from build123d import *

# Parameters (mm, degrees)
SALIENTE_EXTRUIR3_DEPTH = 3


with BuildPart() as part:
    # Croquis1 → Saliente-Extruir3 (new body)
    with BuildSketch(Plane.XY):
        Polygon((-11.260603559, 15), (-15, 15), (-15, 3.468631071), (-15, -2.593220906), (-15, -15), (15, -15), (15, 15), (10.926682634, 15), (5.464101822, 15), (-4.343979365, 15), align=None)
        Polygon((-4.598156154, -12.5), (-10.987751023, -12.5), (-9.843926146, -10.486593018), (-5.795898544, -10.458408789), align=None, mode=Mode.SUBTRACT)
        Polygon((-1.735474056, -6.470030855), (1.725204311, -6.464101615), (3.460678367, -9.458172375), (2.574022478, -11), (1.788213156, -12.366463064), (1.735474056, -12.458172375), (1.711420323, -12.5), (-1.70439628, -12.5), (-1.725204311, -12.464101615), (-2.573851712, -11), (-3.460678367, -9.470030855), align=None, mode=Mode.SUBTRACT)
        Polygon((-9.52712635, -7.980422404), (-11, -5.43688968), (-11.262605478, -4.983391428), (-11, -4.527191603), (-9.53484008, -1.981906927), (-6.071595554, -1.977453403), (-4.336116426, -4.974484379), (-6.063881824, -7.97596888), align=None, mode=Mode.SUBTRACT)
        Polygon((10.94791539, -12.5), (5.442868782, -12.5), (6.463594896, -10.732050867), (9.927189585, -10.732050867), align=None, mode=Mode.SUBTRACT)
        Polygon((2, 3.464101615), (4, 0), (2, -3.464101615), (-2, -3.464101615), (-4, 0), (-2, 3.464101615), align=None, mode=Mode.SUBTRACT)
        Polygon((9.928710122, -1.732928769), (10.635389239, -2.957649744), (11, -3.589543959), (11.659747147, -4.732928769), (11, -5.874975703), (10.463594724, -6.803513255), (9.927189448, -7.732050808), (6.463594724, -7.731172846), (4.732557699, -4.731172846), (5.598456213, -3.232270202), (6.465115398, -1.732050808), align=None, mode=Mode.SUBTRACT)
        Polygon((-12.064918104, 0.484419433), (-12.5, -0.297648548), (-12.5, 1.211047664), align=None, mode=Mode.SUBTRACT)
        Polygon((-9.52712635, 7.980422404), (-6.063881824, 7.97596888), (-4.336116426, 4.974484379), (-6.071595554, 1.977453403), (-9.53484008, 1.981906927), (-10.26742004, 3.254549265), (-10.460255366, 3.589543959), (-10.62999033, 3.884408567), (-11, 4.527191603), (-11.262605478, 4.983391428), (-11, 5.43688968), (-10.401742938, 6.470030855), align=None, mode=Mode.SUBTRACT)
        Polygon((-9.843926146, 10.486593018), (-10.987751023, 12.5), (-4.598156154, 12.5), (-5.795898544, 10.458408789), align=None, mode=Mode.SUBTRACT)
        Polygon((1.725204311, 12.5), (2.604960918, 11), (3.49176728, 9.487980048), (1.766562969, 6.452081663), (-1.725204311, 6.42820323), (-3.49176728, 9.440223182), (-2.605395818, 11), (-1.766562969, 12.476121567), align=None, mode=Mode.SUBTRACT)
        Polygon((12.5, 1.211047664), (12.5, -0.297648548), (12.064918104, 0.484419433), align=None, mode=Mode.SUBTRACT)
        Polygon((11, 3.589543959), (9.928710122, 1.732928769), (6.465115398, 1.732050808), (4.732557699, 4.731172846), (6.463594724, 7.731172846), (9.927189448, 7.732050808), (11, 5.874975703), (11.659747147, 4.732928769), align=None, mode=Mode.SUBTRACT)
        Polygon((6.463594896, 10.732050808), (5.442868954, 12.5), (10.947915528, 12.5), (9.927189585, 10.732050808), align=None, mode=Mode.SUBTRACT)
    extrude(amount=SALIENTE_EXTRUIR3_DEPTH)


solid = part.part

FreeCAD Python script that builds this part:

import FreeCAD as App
import Part
import Sketcher
Q = App.Units.Quantity

doc = App.newDocument("Part")
body = doc.addObject("PartDesign::Body", "Body")

# Sketch on XY plane
sketch1 = body.newObject("Sketcher::SketchObject", "Sketch")
sketch1.AttachmentSupport = (doc.getObject("XY_Plane"), [""])
sketch1.MapMode = "FlatFace"
sketch1.addGeometry([
    Part.LineSegment(App.Vector(-15, 15, 0), App.Vector(-15, -15, 0)),  # 0
    Part.LineSegment(App.Vector(-15, -15, 0), App.Vector(15, -15, 0)),  # 1
    Part.LineSegment(App.Vector(15, -15, 0), App.Vector(15, 15, 0)),  # 2
    Part.LineSegment(App.Vector(15, 15, 0), App.Vector(-15, 15, 0)),  # 3
    Part.LineSegment(App.Vector(-5.796, -10.458, 0), App.Vector(-4.598, -12.5, 0)),  # 4
    Part.LineSegment(App.Vector(-4.598, -12.5, 0), App.Vector(-10.988, -12.5, 0)),  # 5
    Part.LineSegment(App.Vector(-10.988, -12.5, 0), App.Vector(-9.844, -10.487, 0)),  # 6
    Part.LineSegment(App.Vector(-9.844, -10.487, 0), App.Vector(-5.796, -10.458, 0)),  # 7
    Part.LineSegment(App.Vector(-6.064, -7.976, 0), App.Vector(-9.527, -7.98, 0)),  # 8
    Part.LineSegment(App.Vector(-9.527, -7.98, 0), App.Vector(-11, -5.437, 0)),  # 9
    Part.LineSegment(App.Vector(-11, -5.437, 0), App.Vector(-11.263, -4.983, 0)),  # 10
    Part.LineSegment(App.Vector(-11.263, -4.983, 0), App.Vector(-11, -4.527, 0)),  # 11
    Part.LineSegment(App.Vector(-11, -4.527, 0), App.Vector(-9.535, -1.982, 0)),  # 12
    Part.LineSegment(App.Vector(-9.535, -1.982, 0), App.Vector(-6.072, -1.977, 0)),  # 13
    Part.LineSegment(App.Vector(-6.072, -1.977, 0), App.Vector(-4.336, -4.974, 0)),  # 14
    Part.LineSegment(App.Vector(-4.336, -4.974, 0), App.Vector(-6.064, -7.976, 0)),  # 15
    Part.LineSegment(App.Vector(-3.461, -9.47, 0), App.Vector(-1.735, -6.47, 0)),  # 16
    Part.LineSegment(App.Vector(-1.735, -6.47, 0), App.Vector(1.725, -6.464, 0)),  # 17
    Part.LineSegment(App.Vector(1.725, -6.464, 0), App.Vector(3.461, -9.458, 0)),  # 18
    Part.LineSegment(App.Vector(3.461, -9.458, 0), App.Vector(2.574, -11, 0)),  # 19
    Part.LineSegment(App.Vector(2.574, -11, 0), App.Vector(1.788, -12.366, 0)),  # 20
    Part.LineSegment(App.Vector(1.788, -12.366, 0), App.Vector(1.735, -12.458, 0)),  # 21
    Part.LineSegment(App.Vector(1.735, -12.458, 0), App.Vector(1.711, -12.5, 0)),  # 22
    Part.LineSegment(App.Vector(1.711, -12.5, 0), App.Vector(-1.704, -12.5, 0)),  # 23
    Part.LineSegment(App.Vector(-1.704, -12.5, 0), App.Vector(-1.725, -12.464, 0)),  # 24
    Part.LineSegment(App.Vector(-1.725, -12.464, 0), App.Vector(-2.574, -11, 0)),  # 25
    Part.LineSegment(App.Vector(-2.574, -11, 0), App.Vector(-3.461, -9.47, 0)),  # 26
    Part.LineSegment(App.Vector(9.927, -10.732, 0), App.Vector(10.948, -12.5, 0)),  # 27
    Part.LineSegment(App.Vector(10.948, -12.5, 0), App.Vector(5.443, -12.5, 0)),  # 28
    Part.LineSegment(App.Vector(5.443, -12.5, 0), App.Vector(6.464, -10.732, 0)),  # 29
    Part.LineSegment(App.Vector(6.464, -10.732, 0), App.Vector(9.927, -10.732, 0)),  # 30
    Part.LineSegment(App.Vector(6.465, -1.732, 0), App.Vector(9.929, -1.733, 0)),  # 31
    Part.LineSegment(App.Vector(9.929, -1.733, 0), App.Vector(10.635, -2.958, 0)),  # 32
    Part.LineSegment(App.Vector(10.635, -2.958, 0), App.Vector(11, -3.59, 0)),  # 33
    Part.LineSegment(App.Vector(11, -3.59, 0), App.Vector(11.66, -4.733, 0)),  # 34
    Part.LineSegment(App.Vector(11.66, -4.733, 0), App.Vector(11, -5.875, 0)),  # 35
    Part.LineSegment(App.Vector(11, -5.875, 0), App.Vector(10.464, -6.804, 0)),  # 36
    Part.LineSegment(App.Vector(10.464, -6.804, 0), App.Vector(9.927, -7.732, 0)),  # 37
    Part.LineSegment(App.Vector(9.927, -7.732, 0), App.Vector(6.464, -7.731, 0)),  # 38
    Part.LineSegment(App.Vector(6.464, -7.731, 0), App.Vector(4.733, -4.731, 0)),  # 39
    Part.LineSegment(App.Vector(4.733, -4.731, 0), App.Vector(5.598, -3.232, 0)),  # 40
    Part.LineSegment(App.Vector(5.598, -3.232, 0), App.Vector(6.465, -1.732, 0)),  # 41
    Part.LineSegment(App.Vector(-12.5, 1.211, 0), App.Vector(-12.065, 0.484, 0)),  # 42
    Part.LineSegment(App.Vector(-12.065, 0.484, 0), App.Vector(-12.5, -0.298, 0)),  # 43
    Part.LineSegment(App.Vector(-12.5, -0.298, 0), App.Vector(-12.5, 1.211, 0)),  # 44
    Part.LineSegment(App.Vector(-10.402, 6.47, 0), App.Vector(-9.527, 7.98, 0)),  # 45
    Part.LineSegment(App.Vector(-9.527, 7.98, 0), App.Vector(-6.064, 7.976, 0)),  # 46
    Part.LineSegment(App.Vector(-6.064, 7.976, 0), App.Vector(-4.336, 4.974, 0)),  # 47
    Part.LineSegment(App.Vector(-4.336, 4.974, 0), App.Vector(-6.072, 1.977, 0)),  # 48
    Part.LineSegment(App.Vector(-6.072, 1.977, 0), App.Vector(-9.535, 1.982, 0)),  # 49
    Part.LineSegment(App.Vector(-9.535, 1.982, 0), App.Vector(-10.267, 3.255, 0)),  # 50
    Part.LineSegment(App.Vector(-10.267, 3.255, 0), App.Vector(-10.46, 3.59, 0)),  # 51
    Part.LineSegment(App.Vector(-10.46, 3.59, 0), App.Vector(-10.63, 3.884, 0)),  # 52
    Part.LineSegment(App.Vector(-10.63, 3.884, 0), App.Vector(-11, 4.527, 0)),  # 53
    Part.LineSegment(App.Vector(-11, 4.527, 0), App.Vector(-11.263, 4.983, 0)),  # 54
    Part.LineSegment(App.Vector(-11.263, 4.983, 0), App.Vector(-11, 5.437, 0)),  # 55
    Part.LineSegment(App.Vector(-11, 5.437, 0), App.Vector(-10.402, 6.47, 0)),  # 56
    Part.LineSegment(App.Vector(-5.796, 10.458, 0), App.Vector(-9.844, 10.487, 0)),  # 57
    Part.LineSegment(App.Vector(-9.844, 10.487, 0), App.Vector(-10.988, 12.5, 0)),  # 58
    Part.LineSegment(App.Vector(-10.988, 12.5, 0), App.Vector(-4.598, 12.5, 0)),  # 59
    Part.LineSegment(App.Vector(-4.598, 12.5, 0), App.Vector(-5.796, 10.458, 0)),  # 60
    Part.LineSegment(App.Vector(-2, 3.464, 0), App.Vector(2, 3.464, 0)),  # 61
    Part.LineSegment(App.Vector(2, 3.464, 0), App.Vector(4, 0, 0)),  # 62
    Part.LineSegment(App.Vector(4, 0, 0), App.Vector(2, -3.464, 0)),  # 63
    Part.LineSegment(App.Vector(2, -3.464, 0), App.Vector(-2, -3.464, 0)),  # 64
    Part.LineSegment(App.Vector(-2, -3.464, 0), App.Vector(-4, 0, 0)),  # 65
    Part.LineSegment(App.Vector(-4, 0, 0), App.Vector(-2, 3.464, 0)),  # 66
    Part.LineSegment(App.Vector(12.065, 0.484, 0), App.Vector(12.5, 1.211, 0)),  # 67
    Part.LineSegment(App.Vector(12.5, 1.211, 0), App.Vector(12.5, -0.298, 0)),  # 68
    Part.LineSegment(App.Vector(12.5, -0.298, 0), App.Vector(12.065, 0.484, 0)),  # 69
    Part.LineSegment(App.Vector(11.66, 4.733, 0), App.Vector(11, 3.59, 0)),  # 70
    Part.LineSegment(App.Vector(11, 3.59, 0), App.Vector(9.929, 1.733, 0)),  # 71
    Part.LineSegment(App.Vector(9.929, 1.733, 0), App.Vector(6.465, 1.732, 0)),  # 72
    Part.LineSegment(App.Vector(6.465, 1.732, 0), App.Vector(4.733, 4.731, 0)),  # 73
    Part.LineSegment(App.Vector(4.733, 4.731, 0), App.Vector(6.464, 7.731, 0)),  # 74
    Part.LineSegment(App.Vector(6.464, 7.731, 0), App.Vector(9.927, 7.732, 0)),  # 75
    Part.LineSegment(App.Vector(9.927, 7.732, 0), App.Vector(11, 5.875, 0)),  # 76
    Part.LineSegment(App.Vector(11, 5.875, 0), App.Vector(11.66, 4.733, 0)),  # 77
    Part.LineSegment(App.Vector(-1.767, 12.476, 0), App.Vector(1.725, 12.5, 0)),  # 78
    Part.LineSegment(App.Vector(1.725, 12.5, 0), App.Vector(2.605, 11, 0)),  # 79
    Part.LineSegment(App.Vector(2.605, 11, 0), App.Vector(3.492, 9.488, 0)),  # 80
    Part.LineSegment(App.Vector(3.492, 9.488, 0), App.Vector(1.767, 6.452, 0)),  # 81
    Part.LineSegment(App.Vector(1.767, 6.452, 0), App.Vector(-1.725, 6.428, 0)),  # 82
    Part.LineSegment(App.Vector(-1.725, 6.428, 0), App.Vector(-3.492, 9.44, 0)),  # 83
    Part.LineSegment(App.Vector(-3.492, 9.44, 0), App.Vector(-2.605, 11, 0)),  # 84
    Part.LineSegment(App.Vector(-2.605, 11, 0), App.Vector(-1.767, 12.476, 0)),  # 85
    Part.LineSegment(App.Vector(9.927, 10.732, 0), App.Vector(6.464, 10.732, 0)),  # 86
    Part.LineSegment(App.Vector(6.464, 10.732, 0), App.Vector(5.443, 12.5, 0)),  # 87
    Part.LineSegment(App.Vector(5.443, 12.5, 0), App.Vector(10.948, 12.5, 0)),  # 88
    Part.LineSegment(App.Vector(10.948, 12.5, 0), App.Vector(9.927, 10.732, 0)),  # 89
], False)
sketch1.addConstraint([
    Sketcher.Constraint("Coincident", 0, 2, 1, 1),
    Sketcher.Constraint("Coincident", 1, 2, 2, 1),
    Sketcher.Constraint("Coincident", 2, 2, 3, 1),
    Sketcher.Constraint("Coincident", 3, 2, 0, 1),
    Sketcher.Constraint("Coincident", 4, 2, 5, 1),
    Sketcher.Constraint("Coincident", 5, 2, 6, 1),
    Sketcher.Constraint("Coincident", 6, 2, 7, 1),
    Sketcher.Constraint("Coincident", 7, 2, 4, 1),
    Sketcher.Constraint("Coincident", 8, 2, 9, 1),
    Sketcher.Constraint("Coincident", 9, 2, 10, 1),
    Sketcher.Constraint("Coincident", 10, 2, 11, 1),
    Sketcher.Constraint("Coincident", 11, 2, 12, 1),
    Sketcher.Constraint("Coincident", 12, 2, 13, 1),
    Sketcher.Constraint("Coincident", 13, 2, 14, 1),
    Sketcher.Constraint("Coincident", 14, 2, 15, 1),
    Sketcher.Constraint("Coincident", 15, 2, 8, 1),
    Sketcher.Constraint("Coincident", 16, 2, 17, 1),
    Sketcher.Constraint("Coincident", 17, 2, 18, 1),
    Sketcher.Constraint("Coincident", 18, 2, 19, 1),
    Sketcher.Constraint("Coincident", 19, 2, 20, 1),
    Sketcher.Constraint("Coincident", 20, 2, 21, 1),
    Sketcher.Constraint("Coincident", 21, 2, 22, 1),
    Sketcher.Constraint("Coincident", 22, 2, 23, 1),
    Sketcher.Constraint("Coincident", 23, 2, 24, 1),
    Sketcher.Constraint("Coincident", 24, 2, 25, 1),
    Sketcher.Constraint("Coincident", 25, 2, 26, 1),
    Sketcher.Constraint("Coincident", 26, 2, 16, 1),
    Sketcher.Constraint("Coincident", 27, 2, 28, 1),
    Sketcher.Constraint("Coincident", 28, 2, 29, 1),
    Sketcher.Constraint("Coincident", 29, 2, 30, 1),
    Sketcher.Constraint("Coincident", 30, 2, 27, 1),
    Sketcher.Constraint("Coincident", 31, 2, 32, 1),
    Sketcher.Constraint("Coincident", 32, 2, 33, 1),
    Sketcher.Constraint("Coincident", 33, 2, 34, 1),
    Sketcher.Constraint("Coincident", 34, 2, 35, 1),
    Sketcher.Constraint("Coincident", 35, 2, 36, 1),
    Sketcher.Constraint("Coincident", 36, 2, 37, 1),
    Sketcher.Constraint("Coincident", 37, 2, 38, 1),
    Sketcher.Constraint("Coincident", 38, 2, 39, 1),
    Sketcher.Constraint("Coincident", 39, 2, 40, 1),
    Sketcher.Constraint("Coincident", 40, 2, 41, 1),
    Sketcher.Constraint("Coincident", 41, 2, 31, 1),
    Sketcher.Constraint("Coincident", 42, 2, 43, 1),
    Sketcher.Constraint("Coincident", 43, 2, 44, 1),
    Sketcher.Constraint("Coincident", 44, 2, 42, 1),
    Sketcher.Constraint("Coincident", 45, 2, 46, 1),
    Sketcher.Constraint("Coincident", 46, 2, 47, 1),
    Sketcher.Constraint("Coincident", 47, 2, 48, 1),
    Sketcher.Constraint("Coincident", 48, 2, 49, 1),
    Sketcher.Constraint("Coincident", 49, 2, 50, 1),
    Sketcher.Constraint("Coincident", 50, 2, 51, 1),
    Sketcher.Constraint("Coincident", 51, 2, 52, 1),
    Sketcher.Constraint("Coincident", 52, 2, 53, 1),
    Sketcher.Constraint("Coincident", 53, 2, 54, 1),
    Sketcher.Constraint("Coincident", 54, 2, 55, 1),
    Sketcher.Constraint("Coincident", 55, 2, 56, 1),
    Sketcher.Constraint("Coincident", 56, 2, 45, 1),
    Sketcher.Constraint("Coincident", 57, 2, 58, 1),
    Sketcher.Constraint("Coincident", 58, 2, 59, 1),
    Sketcher.Constraint("Coincident", 59, 2, 60, 1),
    Sketcher.Constraint("Coincident", 60, 2, 57, 1),
    Sketcher.Constraint("Coincident", 61, 2, 62, 1),
    Sketcher.Constraint("Coincident", 62, 2, 63, 1),
    Sketcher.Constraint("Coincident", 63, 2, 64, 1),
    Sketcher.Constraint("Coincident", 64, 2, 65, 1),
    Sketcher.Constraint("Coincident", 65, 2, 66, 1),
    Sketcher.Constraint("Coincident", 66, 2, 61, 1),
    Sketcher.Constraint("Coincident", 67, 2, 68, 1),
    Sketcher.Constraint("Coincident", 68, 2, 69, 1),
    Sketcher.Constraint("Coincident", 69, 2, 67, 1),
    Sketcher.Constraint("Coincident", 70, 2, 71, 1),
    Sketcher.Constraint("Coincident", 71, 2, 72, 1),
    Sketcher.Constraint("Coincident", 72, 2, 73, 1),
    Sketcher.Constraint("Coincident", 73, 2, 74, 1),
    Sketcher.Constraint("Coincident", 74, 2, 75, 1),
    Sketcher.Constraint("Coincident", 75, 2, 76, 1),
    Sketcher.Constraint("Coincident", 76, 2, 77, 1),
    Sketcher.Constraint("Coincident", 77, 2, 70, 1),
    Sketcher.Constraint("Coincident", 78, 2, 79, 1),
    Sketcher.Constraint("Coincident", 79, 2, 80, 1),
    Sketcher.Constraint("Coincident", 80, 2, 81, 1),
    Sketcher.Constraint("Coincident", 81, 2, 82, 1),
    Sketcher.Constraint("Coincident", 82, 2, 83, 1),
    Sketcher.Constraint("Coincident", 83, 2, 84, 1),
    Sketcher.Constraint("Coincident", 84, 2, 85, 1),
    Sketcher.Constraint("Coincident", 85, 2, 78, 1),
    Sketcher.Constraint("Coincident", 86, 2, 87, 1),
    Sketcher.Constraint("Coincident", 87, 2, 88, 1),
    Sketcher.Constraint("Coincident", 88, 2, 89, 1),
    Sketcher.Constraint("Coincident", 89, 2, 86, 1),
    Sketcher.Constraint("Vertical", 0),
    Sketcher.Constraint("Horizontal", 1),
    Sketcher.Constraint("Vertical", 2),
    Sketcher.Constraint("Horizontal", 3),
    Sketcher.Constraint("Horizontal", 5),
    Sketcher.Constraint("Horizontal", 23),
    Sketcher.Constraint("Horizontal", 28),
    Sketcher.Constraint("Horizontal", 30),
    Sketcher.Constraint("Vertical", 44),
    Sketcher.Constraint("Horizontal", 59),
    Sketcher.Constraint("Horizontal", 61),
    Sketcher.Constraint("Horizontal", 64),
    Sketcher.Constraint("Vertical", 68),
    Sketcher.Constraint("Horizontal", 86),
    Sketcher.Constraint("Horizontal", 88),
    Sketcher.Constraint("Symmetric", 0, 2, 2, 2, -1, 1),
    Sketcher.Constraint("Symmetric", 61, 2, 64, 2, -1, 1),
    Sketcher.Constraint("Symmetric", 62, 2, 65, 2, -1, 1),
    Sketcher.Constraint("Symmetric", 44, 2, 67, 2, -2),
    Sketcher.Constraint("Symmetric", 42, 2, 69, 2, -2),
    Sketcher.Constraint("Symmetric", 8, 2, 45, 2, -1),
    Sketcher.Constraint("Symmetric", 15, 2, 46, 2, -1),
    Sketcher.Constraint("Symmetric", 14, 2, 47, 2, -1),
    Sketcher.Constraint("Symmetric", 13, 2, 48, 2, -1),
    Sketcher.Constraint("Symmetric", 12, 2, 49, 2, -1),
    Sketcher.Constraint("Symmetric", 11, 2, 53, 2, -1),
    Sketcher.Constraint("Symmetric", 10, 2, 54, 2, -1),
    Sketcher.Constraint("Symmetric", 9, 2, 55, 2, -1),
    Sketcher.Constraint("Symmetric", 6, 2, 57, 2, -1),
    Sketcher.Constraint("Symmetric", 5, 2, 58, 2, -1),
    Sketcher.Constraint("Symmetric", 7, 2, 60, 2, -1),
    Sketcher.Constraint("Symmetric", 33, 2, 70, 2, -1),
    Sketcher.Constraint("Symmetric", 31, 2, 71, 2, -1),
    Sketcher.Constraint("Symmetric", 41, 2, 72, 2, -1),
    Sketcher.Constraint("Symmetric", 39, 2, 73, 2, -1),
    Sketcher.Constraint("Symmetric", 38, 2, 74, 2, -1),
    Sketcher.Constraint("Symmetric", 37, 2, 75, 2, -1),
    Sketcher.Constraint("Symmetric", 35, 2, 76, 2, -1),
    Sketcher.Constraint("Symmetric", 34, 2, 77, 2, -1),
    Sketcher.Constraint("Symmetric", 29, 2, 86, 2, -1),
    Sketcher.Constraint("Symmetric", 28, 2, 87, 2, -1),
    Sketcher.Constraint("PointOnObject", 62, 2, -1),
    Sketcher.Constraint("Parallel", 9, 10),
    Sketcher.Constraint("Parallel", 11, 12),
    Sketcher.Constraint("Parallel", 8, 13),
    Sketcher.Constraint("Parallel", 10, 14),
    Sketcher.Constraint("Parallel", 12, 15),
    Sketcher.Constraint("Parallel", 16, 19),
    Sketcher.Constraint("Parallel", 19, 20),
    Sketcher.Constraint("Parallel", 20, 21),
    Sketcher.Constraint("Parallel", 21, 22),
    Sketcher.Constraint("Parallel", 18, 24),
    Sketcher.Constraint("Parallel", 24, 25),
    Sketcher.Constraint("Parallel", 25, 26),
    Sketcher.Constraint("Parallel", 32, 33),
    Sketcher.Constraint("Parallel", 33, 34),
    Sketcher.Constraint("Parallel", 35, 36),
    Sketcher.Constraint("Parallel", 36, 37),
    Sketcher.Constraint("Parallel", 31, 38),
    Sketcher.Constraint("Parallel", 34, 39),
    Sketcher.Constraint("Parallel", 37, 40),
    Sketcher.Constraint("Parallel", 40, 41),
    Sketcher.Constraint("Parallel", 45, 48),
    Sketcher.Constraint("Parallel", 47, 50),
    Sketcher.Constraint("Parallel", 50, 51),
    Sketcher.Constraint("Parallel", 51, 52),
    Sketcher.Constraint("Parallel", 27, 62),
    Sketcher.Constraint("Parallel", 29, 63),
    Sketcher.Constraint("Parallel", 63, 66),
    Sketcher.Constraint("Parallel", 79, 80),
    Sketcher.Constraint("Parallel", 78, 82),
    Sketcher.Constraint("Parallel", 80, 83),
    Sketcher.Constraint("Parallel", 81, 84),
    Sketcher.Constraint("Parallel", 84, 85),
    Sketcher.Constraint("Parallel", 65, 87),
    Sketcher.Constraint("Parallel", 66, 89),
    Sketcher.Constraint("Horizontal", 5, 2, 22, 2),
    Sketcher.Constraint("Horizontal", 19, 2, 25, 2),
    Sketcher.Constraint("Horizontal", 23, 2, 27, 2),
    Sketcher.Constraint("Horizontal", 43, 2, 68, 2),
    Sketcher.Constraint("Horizontal", 51, 2, 70, 2),
    Sketcher.Constraint("Horizontal", 59, 2, 78, 2),
    Sketcher.Constraint("Horizontal", 79, 2, 84, 2),
    Sketcher.Constraint("Vertical", 9, 2, 11, 2),
    Sketcher.Constraint("Vertical", 33, 2, 35, 2),
    Sketcher.Constraint("Vertical", 30, 2, 37, 2),
    Sketcher.Constraint("Vertical", 29, 2, 38, 2),
    Sketcher.Constraint("Vertical", 4, 2, 59, 2),
    Sketcher.Constraint("Vertical", 17, 2, 78, 2),
    Sketcher.Constraint("Vertical", 24, 2, 82, 2),
    Sketcher.Constraint("Vertical", 27, 2, 88, 2),
    Sketcher.Constraint("Equal", 3, 0),
    Sketcher.Constraint("Equal", 8, 13),
    Sketcher.Constraint("Equal", 13, 14),
    Sketcher.Constraint("Equal", 14, 15),
    Sketcher.Constraint("Equal", 16, 17),
    Sketcher.Constraint("Equal", 17, 18),
    Sketcher.Constraint("Equal", 36, 37),
    Sketcher.Constraint("Equal", 31, 38),
    Sketcher.Constraint("Equal", 38, 39),
    Sketcher.Constraint("Equal", 72, 73),
    Sketcher.Constraint("Equal", 78, 81),
    Sketcher.Constraint("Equal", 81, 82),
    Sketcher.Constraint("Equal", 82, 83),
    Sketcher.Constraint("DistanceX", 1, 1, 1, 2, 30.0),
    Sketcher.Constraint("DistanceX", 61, 1, 61, 2, 4.0),
    Sketcher.Constraint("Angle", 27, Q("-60.000002 deg")),
    Sketcher.Constraint("Distance", 62, 4.0),
    Sketcher.Constraint("DistanceX", 9, 2, -1, 1, 11.0),
    Sketcher.Constraint("DistanceY", 19, 2, -1, 1, 11.0),
    Sketcher.Constraint("DistanceX", -1, 1, 33, 2, 11.0),
    Sketcher.Constraint("DistanceY", -1, 1, 79, 2, 11.0),
    Sketcher.Constraint("DistanceY", 4, 2, -1, 1, 12.5),
    Sketcher.Constraint("DistanceX", 43, 2, -1, 1, 12.5),
    Sketcher.Constraint("Distance", 4, 2.366998),
    Sketcher.Constraint("Distance", 20, 1.576299),
    Sketcher.Constraint("DistanceX", 7, 2, -1, 1, 5.795899),
    Sketcher.Constraint("DistanceY", 17, 2, -1, 1, 6.464102),
    Sketcher.Constraint("DistanceY", 24, 2, -1, 1, 12.464102),
    Sketcher.Constraint("Distance", 6, 2.31563),
    Sketcher.Constraint("Distance", 22, 0.048251),
    Sketcher.Constraint("Distance", 26, 1.768408),
    Sketcher.Constraint("Distance", 27, 2.041452),
    Sketcher.Constraint("Distance", 32, 1.413979),
    Sketcher.Constraint("Distance", 33, 0.729542),
    Sketcher.Constraint("Distance", 36, 1.07234),
    Sketcher.Constraint("Distance", 50, 1.468432),
    Sketcher.Constraint("Distance", 51, 0.386532),
    Sketcher.Constraint("Distance", 52, 0.340228),
    Sketcher.Constraint("Distance", 53, 0.741672),
    Sketcher.Constraint("Distance", 78, 3.491849),
    Sketcher.Constraint("Distance", 80, 1.752892),
    Sketcher.Constraint("DistanceX", 5, 2, 5, 1, 6.389595),
    Sketcher.Constraint("DistanceX", 23, 2, 23, 1, 3.415817),
    Sketcher.Constraint("DistanceX", 28, 2, 28, 1, 5.505047),
    Sketcher.Constraint("DistanceY", 44, 1, 44, 2, 1.508696),
    Sketcher.Constraint("DistanceX", 5, 2, -1, 1, 10.987751),
    Sketcher.Constraint("DistanceY", 9, 2, -1, 1, 5.43689),
    Sketcher.Constraint("DistanceY", 10, 2, -1, 1, 4.983391),
    Sketcher.Constraint("DistanceY", 11, 2, -1, 1, 4.527192),
    Sketcher.Constraint("DistanceX", 12, 2, -1, 1, 9.53484),
    Sketcher.Constraint("DistanceY", 15, 2, -1, 1, 7.975969),
    Sketcher.Constraint("DistanceY", 16, 2, -1, 1, 6.470031),
    Sketcher.Constraint("DistanceX", -1, 1, 18, 2, 3.460678),
    Sketcher.Constraint("DistanceX", -1, 1, 22, 2, 1.71142),
    Sketcher.Constraint("DistanceX", -1, 1, 28, 2, 5.442869),
    Sketcher.Constraint("DistanceY", 40, 2, -1, 1, 3.23227),
    Sketcher.Constraint("DistanceY", 41, 2, -1, 1, 1.732051),
    Sketcher.Constraint("DistanceX", 42, 2, -1, 1, 12.064918),
    Sketcher.Constraint("DistanceY", -1, 1, 42, 2, 0.484419),
    Sketcher.Constraint("DistanceY", 43, 2, -1, 1, 0.297649),
    Sketcher.Constraint("DistanceY", -1, 1, 56, 2, 6.470031),
    Sketcher.Constraint("DistanceY", -1, 1, 85, 2, 12.476122),
    Sketcher.Constraint("Distance", 7, 4.048126),
])
pad1 = body.newObject("PartDesign::Pad", "Pad")
pad1.Profile = sketch1
pad1.Length = 3

doc.recompute()
